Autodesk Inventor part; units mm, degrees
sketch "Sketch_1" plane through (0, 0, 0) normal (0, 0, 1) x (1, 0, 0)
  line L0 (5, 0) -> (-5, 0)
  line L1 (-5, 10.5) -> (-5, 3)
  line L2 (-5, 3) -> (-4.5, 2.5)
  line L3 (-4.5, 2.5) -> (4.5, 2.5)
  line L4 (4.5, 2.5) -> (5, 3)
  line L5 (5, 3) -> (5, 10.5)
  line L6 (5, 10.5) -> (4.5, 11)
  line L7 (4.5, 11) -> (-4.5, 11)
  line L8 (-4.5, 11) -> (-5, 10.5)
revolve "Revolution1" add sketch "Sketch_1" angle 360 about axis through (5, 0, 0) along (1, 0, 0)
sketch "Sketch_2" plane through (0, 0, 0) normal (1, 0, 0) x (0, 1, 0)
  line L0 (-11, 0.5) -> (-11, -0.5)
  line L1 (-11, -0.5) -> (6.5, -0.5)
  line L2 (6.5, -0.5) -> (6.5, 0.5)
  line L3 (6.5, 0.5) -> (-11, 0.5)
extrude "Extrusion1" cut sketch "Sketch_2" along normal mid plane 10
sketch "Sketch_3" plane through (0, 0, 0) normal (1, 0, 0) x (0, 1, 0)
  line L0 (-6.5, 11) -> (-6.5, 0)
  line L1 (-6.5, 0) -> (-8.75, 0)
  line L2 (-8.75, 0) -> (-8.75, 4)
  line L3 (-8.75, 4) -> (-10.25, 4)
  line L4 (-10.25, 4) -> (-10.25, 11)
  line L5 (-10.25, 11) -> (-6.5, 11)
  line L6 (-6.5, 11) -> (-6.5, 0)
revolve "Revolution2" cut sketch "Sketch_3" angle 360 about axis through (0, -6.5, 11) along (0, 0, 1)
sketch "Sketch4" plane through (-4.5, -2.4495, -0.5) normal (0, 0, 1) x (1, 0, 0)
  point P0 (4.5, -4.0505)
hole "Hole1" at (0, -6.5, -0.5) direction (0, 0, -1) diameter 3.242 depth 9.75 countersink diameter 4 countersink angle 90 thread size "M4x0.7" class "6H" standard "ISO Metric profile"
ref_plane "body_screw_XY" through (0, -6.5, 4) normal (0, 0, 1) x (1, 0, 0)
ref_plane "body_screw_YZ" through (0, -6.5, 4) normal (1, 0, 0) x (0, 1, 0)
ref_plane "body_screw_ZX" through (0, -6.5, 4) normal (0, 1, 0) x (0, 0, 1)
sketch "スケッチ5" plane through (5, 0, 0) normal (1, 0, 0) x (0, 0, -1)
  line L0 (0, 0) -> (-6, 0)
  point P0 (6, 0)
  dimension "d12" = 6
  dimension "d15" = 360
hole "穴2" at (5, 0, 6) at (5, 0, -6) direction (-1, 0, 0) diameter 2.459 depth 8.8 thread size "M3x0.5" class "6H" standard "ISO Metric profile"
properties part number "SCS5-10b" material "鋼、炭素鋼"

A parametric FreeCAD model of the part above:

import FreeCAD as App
import Part
import Sketcher

V = App.Vector
Q = App.Units.Quantity


def add_polygon(sketch, points):
    """Adds a closed chain of lines whose ends are joined by coincident constraints."""
    first, n = sketch.GeometryCount, len(points)
    for a, b in zip(points, points[1:] + points[:1]):
        sketch.addGeometry(Part.LineSegment(App.Vector(*a, 0), App.Vector(*b, 0)), False)
    for i in range(n):
        sketch.addConstraint(Sketcher.Constraint("Coincident", first + i, 2, first + (i + 1) % n, 1))

doc = App.newDocument("Part")
params = doc.addObject("Spreadsheet::Sheet", "Params")
for row, (alias, value) in enumerate([
    ("sketch1_width", "9 mm"),
    ("sketch1_height", "7.5 mm"),
    ("revolution_angle", "360 deg"),
    ("sketch2_height", "1 mm"),
    ("sketch2_width", "17.5 mm"),
    ("pocket1_length", "10 mm"),
    ("sketch3_height", "11 mm"),
    ("sketch3_height2", "7 mm"),
    ("sketch3_width", "1.5 mm"),
    ("sketch3_width2", "3.75 mm"),
    ("groove_angle", "360 deg"),
    ("hole_diameter", "3.242 mm"),
    ("hole_depth", "9.75 mm"),
    ("hole_csink_diameter", "4 mm"),
    ("hole2_diameter", "2.459 mm"),
    ("hole2_depth", "8.8 mm"),
], start=1):
    params.set(f"A{row}", alias)
    params.set(f"B{row}", "=" + value)
    params.setAlias(f"B{row}", alias)

body = doc.addObject("PartDesign::Body", "Body")

sketch1 = body.newObject("Sketcher::SketchObject", "Sketch")
sketch1.AttachmentSupport = (doc.getObject("XY_Plane"), [""])
sketch1.MapMode = "FlatFace"
add_polygon(sketch1, [(-4.5, 11), (-5, 10.5), (-5, 3), (-4.5, 2.5), (4.5, 2.5), (5, 3), (5, 10.5), (4.5, 11)])
sketch1.addConstraint(Sketcher.Constraint("Vertical", 1))
sketch1.addConstraint(Sketcher.Constraint("Horizontal", 3))
sketch1.addConstraint(Sketcher.Constraint("Vertical", 5))
sketch1.addConstraint(Sketcher.Constraint("Horizontal", 7))
sketch1.addConstraint(Sketcher.Constraint("Symmetric", 1, 2, 4, 2, -2))
sketch1.addConstraint(Sketcher.Constraint("Perpendicular", 0, 2))
sketch1.addConstraint(Sketcher.Constraint("Perpendicular", 2, 4))
sketch1.addConstraint(Sketcher.Constraint("Perpendicular", 4, 6))
sketch1.addConstraint(Sketcher.Constraint("Horizontal", 0, 2, 5, 2))
sketch1.addConstraint(Sketcher.Constraint("Vertical", 3, 2, 6, 2))
sketch1.addConstraint(Sketcher.Constraint("Vertical", 2, 2, 7, 2))
sketch1.addConstraint(Sketcher.Constraint("DistanceX", 3, 1, 3, 2, Q("9 mm")))
sketch1.addConstraint(Sketcher.Constraint("DistanceY", 1, 2, 1, 1, Q("7.5 mm")))
sketch1.addConstraint(Sketcher.Constraint("DistanceX", 0, 2, -1, 1, Q("5 mm")))
sketch1.addConstraint(Sketcher.Constraint("DistanceY", -1, 1, 1, 2, Q("3 mm")))
sketch1.setExpression("Constraints[19]", "Params.sketch1_width")
sketch1.setExpression("Constraints[20]", "Params.sketch1_height")
revolution = body.newObject("PartDesign::Revolution", "Revolution")
revolution.Profile = sketch1
revolution.ReferenceAxis = (sketch1, ["H_Axis"])
revolution.setExpression("Angle", "Params.revolution_angle")

sketch2 = body.newObject("Sketcher::SketchObject", "Sketch001")
sketch2.AttachmentSupport = (doc.getObject("YZ_Plane"), [""])
sketch2.MapMode = "FlatFace"
add_polygon(sketch2, [(6.5, 0.5), (-11, 0.5), (-11, -0.5), (6.5, -0.5)])
sketch2.addConstraint(Sketcher.Constraint("Horizontal", 0))
sketch2.addConstraint(Sketcher.Constraint("Vertical", 1))
sketch2.addConstraint(Sketcher.Constraint("Horizontal", 2))
sketch2.addConstraint(Sketcher.Constraint("Vertical", 3))
sketch2.addConstraint(Sketcher.Constraint("DistanceY", 1, 2, 1, 1, Q("1 mm")))
sketch2.addConstraint(Sketcher.Constraint("DistanceX", 0, 2, 0, 1, Q("17.5 mm")))
sketch2.addConstraint(Sketcher.Constraint("DistanceX", 0, 2, -1, 1, Q("11 mm")))
sketch2.addConstraint(Sketcher.Constraint("DistanceY", -1, 1, 0, 2, Q("0.5 mm")))
sketch2.setExpression("Constraints[8]", "Params.sketch2_height")
sketch2.setExpression("Constraints[9]", "Params.sketch2_width")
pocket1 = body.newObject("PartDesign::Pocket", "Pocket")
pocket1.Profile = sketch2
pocket1.setExpression("Length", "Params.pocket1_length")
pocket1.Midplane = True

sketch3 = body.newObject("Sketcher::SketchObject", "Sketch002")
sketch3.AttachmentSupport = (doc.getObject("YZ_Plane"), [""])
sketch3.MapMode = "FlatFace"
add_polygon(sketch3, [(-6.5, 0), (-6.5, 11), (-10.2, 11), (-10.2, 4), (-8.8, 4), (-8.8, 0)])
sketch3.addGeometry(Part.LineSegment(V(-6.5, 0, 0), V(-6.5, 11, 0)), True)
sketch3.addConstraint(Sketcher.Constraint("Vertical", 0))
sketch3.addConstraint(Sketcher.Constraint("Horizontal", 1))
sketch3.addConstraint(Sketcher.Constraint("Vertical", 2))
sketch3.addConstraint(Sketcher.Constraint("Horizontal", 3))
sketch3.addConstraint(Sketcher.Constraint("Vertical", 4))
sketch3.addConstraint(Sketcher.Constraint("Horizontal", 5))
sketch3.addConstraint(Sketcher.Constraint("Vertical", 6))
sketch3.addConstraint(Sketcher.Constraint("Coincident", 6, 1, 5, 2))
sketch3.addConstraint(Sketcher.Constraint("PointOnObject", 4, 2, -1))
sketch3.addConstraint(Sketcher.Constraint("Horizontal", 1, 2, 6, 2))
sketch3.addConstraint(Sketcher.Constraint("DistanceY", 0, 1, 0, 2, Q("11 mm")))
sketch3.addConstraint(Sketcher.Constraint("DistanceY", 2, 2, 2, 1, Q("7 mm")))
sketch3.addConstraint(Sketcher.Constraint("DistanceX", 3, 1, 3, 2, Q("1.5 mm")))
sketch3.addConstraint(Sketcher.Constraint("DistanceX", 1, 2, 1, 1, Q("3.75 mm")))
sketch3.addConstraint(Sketcher.Constraint("DistanceX", 0, 2, -1, 1, Q("6.5 mm")))
sketch3.setExpression("Constraints[16]", "Params.sketch3_height")
sketch3.setExpression("Constraints[17]", "Params.sketch3_height2")
sketch3.setExpression("Constraints[18]", "Params.sketch3_width")
sketch3.setExpression("Constraints[19]", "Params.sketch3_width2")
groove = body.newObject("PartDesign::Groove", "Groove")
groove.Profile = sketch3
groove.ReferenceAxis = (sketch3, ["Axis0"])
groove.setExpression("Angle", "Params.groove_angle")

sketch4 = body.newObject("Sketcher::SketchObject", "Sketch003")
sketch4.AttachmentSupport = (doc.getObject("XY_Plane"), [""])
sketch4.MapMode = "FlatFace"
sketch4.AttachmentOffset = App.Placement(V(0, 0, -0.5), App.Rotation())
sketch4.addGeometry(Part.Circle(V(0, -6.5, 0), V(0, 0, 1), 1.6), False)
sketch4.addConstraint(Sketcher.Constraint("PointOnObject", 0, 3, -2))
sketch4.addConstraint(Sketcher.Constraint("Diameter", 0, Q("3.242 mm")))
sketch4.addConstraint(Sketcher.Constraint("DistanceY", 0, 3, -1, 1, Q("6.5 mm")))
doc.recompute()
hole = body.newObject("PartDesign::Hole", "Hole")
hole.Profile = sketch4
hole.ThreadType = "None"
hole.setExpression("Diameter", "Params.hole_diameter")
hole.DepthType = "Dimension"
hole.setExpression("Depth", "Params.hole_depth")
hole.DrillPoint = "Flat"
hole.HoleCutType = "Countersink"
hole.setExpression("HoleCutDiameter", "Params.hole_csink_diameter")
hole.HoleCutCountersinkAngle = 90

sketch5 = body.newObject("Sketcher::SketchObject", "Sketch004")
sketch5.AttachmentSupport = (doc.getObject("YZ_Plane"), [""])
sketch5.MapMode = "FlatFace"
sketch5.AttachmentOffset = App.Placement(V(0, 0, 5), App.Rotation())
sketch5.addGeometry(Part.Circle(V(0, 6, 0), V(0, 0, 1), 1.2), False)
sketch5.addGeometry(Part.Circle(V(0, -6, 0), V(0, 0, 1), 1.2), False)
sketch5.addConstraint(Sketcher.Constraint("Equal", 0, 1))
sketch5.addConstraint(Sketcher.Constraint("Symmetric", 0, 3, 1, 3, -1, 1))
sketch5.addConstraint(Sketcher.Constraint("PointOnObject", 0, 3, -2))
sketch5.addConstraint(Sketcher.Constraint("Diameter", 0, Q("2.459 mm")))
sketch5.addConstraint(Sketcher.Constraint("DistanceY", -1, 1, 0, 3, Q("6 mm")))
doc.recompute()
hole2 = body.newObject("PartDesign::Hole", "Hole001")
hole2.Profile = sketch5
hole2.ThreadType = "None"
hole2.setExpression("Diameter", "Params.hole2_diameter")
hole2.DepthType = "Dimension"
hole2.setExpression("Depth", "Params.hole2_depth")
hole2.DrillPoint = "Flat"

doc.recompute()
